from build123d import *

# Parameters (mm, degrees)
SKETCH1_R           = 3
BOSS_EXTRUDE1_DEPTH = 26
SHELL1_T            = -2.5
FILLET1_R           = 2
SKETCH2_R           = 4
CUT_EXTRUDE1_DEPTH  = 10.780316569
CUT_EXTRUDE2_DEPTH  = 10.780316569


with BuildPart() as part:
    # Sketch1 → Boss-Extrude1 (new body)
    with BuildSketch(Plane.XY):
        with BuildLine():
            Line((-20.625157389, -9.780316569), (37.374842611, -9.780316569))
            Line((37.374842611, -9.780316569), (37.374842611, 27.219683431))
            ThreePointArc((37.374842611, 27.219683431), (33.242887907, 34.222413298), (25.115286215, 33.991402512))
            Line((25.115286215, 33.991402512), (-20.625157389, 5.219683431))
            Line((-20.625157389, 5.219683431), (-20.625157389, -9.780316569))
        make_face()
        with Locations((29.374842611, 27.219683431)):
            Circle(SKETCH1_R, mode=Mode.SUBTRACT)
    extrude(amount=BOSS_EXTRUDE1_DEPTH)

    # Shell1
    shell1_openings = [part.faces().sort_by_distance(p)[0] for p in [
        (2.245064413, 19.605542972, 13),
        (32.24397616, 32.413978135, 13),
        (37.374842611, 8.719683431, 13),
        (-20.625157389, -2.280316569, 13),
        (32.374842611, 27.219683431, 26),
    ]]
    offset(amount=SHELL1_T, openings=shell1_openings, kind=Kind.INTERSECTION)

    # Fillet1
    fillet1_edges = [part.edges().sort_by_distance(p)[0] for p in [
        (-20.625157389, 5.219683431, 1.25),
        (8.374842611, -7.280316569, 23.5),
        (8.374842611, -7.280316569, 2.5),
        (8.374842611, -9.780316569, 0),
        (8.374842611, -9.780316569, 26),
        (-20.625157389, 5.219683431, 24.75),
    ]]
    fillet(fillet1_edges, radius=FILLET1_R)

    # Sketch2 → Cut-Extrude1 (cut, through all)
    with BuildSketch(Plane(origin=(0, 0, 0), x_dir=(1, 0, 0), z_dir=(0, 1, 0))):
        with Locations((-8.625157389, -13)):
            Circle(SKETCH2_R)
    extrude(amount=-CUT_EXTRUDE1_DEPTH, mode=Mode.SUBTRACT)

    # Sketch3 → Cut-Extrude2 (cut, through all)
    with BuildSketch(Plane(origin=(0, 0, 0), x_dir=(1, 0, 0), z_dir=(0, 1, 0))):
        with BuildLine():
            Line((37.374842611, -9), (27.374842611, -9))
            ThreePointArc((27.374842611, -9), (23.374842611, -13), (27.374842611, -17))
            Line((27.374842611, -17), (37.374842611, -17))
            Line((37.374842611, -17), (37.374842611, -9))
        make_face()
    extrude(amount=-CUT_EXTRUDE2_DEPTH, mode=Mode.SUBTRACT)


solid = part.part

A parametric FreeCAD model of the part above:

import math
import FreeCAD as App
import Part
import Sketcher
Q = App.Units.Quantity


def edges_at(feature, points):
    """Names of the edges that pass closest to the given points."""
    edges = feature.Shape.Edges
    near = lambda p: min(range(len(edges)), key=lambda i: edges[i].distToShape(Part.Vertex(*p))[0])
    return sorted({f"Edge{near(p) + 1}" for p in points})


def faces_at(feature, points):
    """Names of the faces that lie closest to the given points."""
    faces = feature.Shape.Faces
    near = lambda p: min(range(len(faces)), key=lambda i: faces[i].distToShape(Part.Vertex(*p))[0])
    return sorted({f"Face{near(p) + 1}" for p in points})

doc = App.newDocument("Part")
body = doc.addObject("PartDesign::Body", "Body")

sketch1 = body.newObject("Sketcher::SketchObject", "Sketch")
sketch1.AttachmentSupport = (doc.getObject("XY_Plane"), [""])
sketch1.MapMode = "FlatFace"
sketch1.addGeometry([
    Part.LineSegment(App.Vector(-20.625157, -9.780317, 0), App.Vector(37.374843, -9.780317, 0)),
    Part.LineSegment(App.Vector(37.374843, -9.780317, 0), App.Vector(37.374843, 27.219683, 0)),
    Part.ArcOfCircle(Part.Circle(App.Vector(29.374843, 27.219683, 0), App.Vector(0, 0, 1), 8), math.radians(0), math.radians(122.170772)),
    Part.LineSegment(App.Vector(25.115286, 33.991403, 0), App.Vector(-20.625157, 5.219683, 0)),
    Part.LineSegment(App.Vector(-20.625157, 5.219683, 0), App.Vector(-20.625157, -9.780317, 0)),
    Part.Circle(App.Vector(29.374843, 27.219683, 0), App.Vector(0, 0, 1), 3),
], False)
sketch1.addConstraint([
    Sketcher.Constraint("Coincident", 0, 2, 1, 1),
    Sketcher.Constraint("Tangent", 1, 2, 2, 1),
    Sketcher.Constraint("Tangent", 2, 2, 3, 1),
    Sketcher.Constraint("Coincident", 3, 2, 4, 1),
    Sketcher.Constraint("Coincident", 4, 2, 0, 1),
    Sketcher.Constraint("Horizontal", 0),
    Sketcher.Constraint("Vertical", 1),
    Sketcher.Constraint("Vertical", 4),
    Sketcher.Constraint("Coincident", 5, 3, 2, 3),
    Sketcher.Constraint("Diameter", 5, Q("6 mm")),
    Sketcher.Constraint("Radius", 2, Q("8 mm")),
    Sketcher.Constraint("DistanceX", 0, 1, 0, 2, Q("58 mm")),
    Sketcher.Constraint("DistanceY", 1, 1, 1, 2, Q("37 mm")),
    Sketcher.Constraint("DistanceY", 4, 2, 4, 1, Q("15 mm")),
    Sketcher.Constraint("DistanceX", -1, 1, 2, 3, Q("29.374843 mm")),
    Sketcher.Constraint("DistanceY", -1, 1, 2, 3, Q("27.219683 mm")),
])
pad1 = body.newObject("PartDesign::Pad", "Pad")
pad1.Profile = sketch1
pad1.Length = 26
doc.recompute()

thickness = body.newObject("PartDesign::Thickness", "Thickness")
thickness.Base = (pad1, faces_at(pad1, [
    (2.245, 19.606, 13),
    (33.243, 34.222, 13),
    (37.375, 8.72, 13),
    (-20.625, -2.28, 13),
    (26.375, 27.22, 13),
]))
thickness.Value = 2.5
thickness.Reversed = True
thickness.Join = "Intersection"
doc.recompute()

fillet = body.newObject("PartDesign::Fillet", "Fillet")
fillet.Base = (thickness, edges_at(thickness, [
    (-20.625, 5.22, 1.25),
    (8.375, -7.28, 23.5),
    (8.375, -7.28, 2.5),
    (8.375, -9.78, 0),
    (8.375, -9.78, 26),
    (-20.625, 5.22, 24.75),
]))
fillet.Radius = 2

sketch2 = body.newObject("Sketcher::SketchObject", "Sketch001")
sketch2.AttachmentSupport = (doc.getObject("XZ_Plane"), [""])
sketch2.MapMode = "FlatFace"
sketch2.addGeometry(Part.Circle(App.Vector(-8.625157, 13, 0), App.Vector(0, 0, 1), 4), False)
sketch2.addConstraint([
    Sketcher.Constraint("Diameter", 0, Q("8 mm")),
    Sketcher.Constraint("DistanceY", -1, 1, 0, 3, Q("13 mm")),
    Sketcher.Constraint("DistanceX", 0, 3, -1, 1, Q("8.625157 mm")),
])
pocket1 = body.newObject("PartDesign::Pocket", "Pocket")
pocket1.Profile = sketch2
pocket1.Type = "ThroughAll"
pocket1.Reversed = True

sketch3 = body.newObject("Sketcher::SketchObject", "Sketch002")
sketch3.AttachmentSupport = (doc.getObject("XZ_Plane"), [""])
sketch3.MapMode = "FlatFace"
sketch3.addGeometry([
    Part.LineSegment(App.Vector(37.374843, 9, 0), App.Vector(27.374843, 9, 0)),
    Part.ArcOfCircle(Part.Circle(App.Vector(27.374843, 13, 0), App.Vector(0, 0, 1), 4), math.radians(90), math.radians(270)),
    Part.LineSegment(App.Vector(27.374843, 17, 0), App.Vector(37.374843, 17, 0)),
    Part.LineSegment(App.Vector(37.374843, 17, 0), App.Vector(37.374843, 9, 0)),
], False)
sketch3.addConstraint([
    Sketcher.Constraint("Tangent", 0, 2, 1, 2),
    Sketcher.Constraint("Tangent", 1, 1, 2, 1),
    Sketcher.Constraint("Coincident", 2, 2, 3, 1),
    Sketcher.Constraint("Coincident", 3, 2, 0, 1),
    Sketcher.Constraint("Horizontal", 0),
    Sketcher.Constraint("Horizontal", 2),
    Sketcher.Constraint("Vertical", 3),
    Sketcher.Constraint("Radius", 1, Q("4 mm")),
    Sketcher.Constraint("DistanceX", 0, 2, 0, 1, Q("10 mm")),
    Sketcher.Constraint("DistanceY", -1, 1, 1, 3, Q("13 mm")),
    Sketcher.Constraint("DistanceX", -1, 1, 1, 3, Q("27.374843 mm")),
])
pocket2 = body.newObject("PartDesign::Pocket", "Pocket001")
pocket2.Profile = sketch3
pocket2.Type = "ThroughAll"
pocket2.Reversed = True

doc.recompute()
